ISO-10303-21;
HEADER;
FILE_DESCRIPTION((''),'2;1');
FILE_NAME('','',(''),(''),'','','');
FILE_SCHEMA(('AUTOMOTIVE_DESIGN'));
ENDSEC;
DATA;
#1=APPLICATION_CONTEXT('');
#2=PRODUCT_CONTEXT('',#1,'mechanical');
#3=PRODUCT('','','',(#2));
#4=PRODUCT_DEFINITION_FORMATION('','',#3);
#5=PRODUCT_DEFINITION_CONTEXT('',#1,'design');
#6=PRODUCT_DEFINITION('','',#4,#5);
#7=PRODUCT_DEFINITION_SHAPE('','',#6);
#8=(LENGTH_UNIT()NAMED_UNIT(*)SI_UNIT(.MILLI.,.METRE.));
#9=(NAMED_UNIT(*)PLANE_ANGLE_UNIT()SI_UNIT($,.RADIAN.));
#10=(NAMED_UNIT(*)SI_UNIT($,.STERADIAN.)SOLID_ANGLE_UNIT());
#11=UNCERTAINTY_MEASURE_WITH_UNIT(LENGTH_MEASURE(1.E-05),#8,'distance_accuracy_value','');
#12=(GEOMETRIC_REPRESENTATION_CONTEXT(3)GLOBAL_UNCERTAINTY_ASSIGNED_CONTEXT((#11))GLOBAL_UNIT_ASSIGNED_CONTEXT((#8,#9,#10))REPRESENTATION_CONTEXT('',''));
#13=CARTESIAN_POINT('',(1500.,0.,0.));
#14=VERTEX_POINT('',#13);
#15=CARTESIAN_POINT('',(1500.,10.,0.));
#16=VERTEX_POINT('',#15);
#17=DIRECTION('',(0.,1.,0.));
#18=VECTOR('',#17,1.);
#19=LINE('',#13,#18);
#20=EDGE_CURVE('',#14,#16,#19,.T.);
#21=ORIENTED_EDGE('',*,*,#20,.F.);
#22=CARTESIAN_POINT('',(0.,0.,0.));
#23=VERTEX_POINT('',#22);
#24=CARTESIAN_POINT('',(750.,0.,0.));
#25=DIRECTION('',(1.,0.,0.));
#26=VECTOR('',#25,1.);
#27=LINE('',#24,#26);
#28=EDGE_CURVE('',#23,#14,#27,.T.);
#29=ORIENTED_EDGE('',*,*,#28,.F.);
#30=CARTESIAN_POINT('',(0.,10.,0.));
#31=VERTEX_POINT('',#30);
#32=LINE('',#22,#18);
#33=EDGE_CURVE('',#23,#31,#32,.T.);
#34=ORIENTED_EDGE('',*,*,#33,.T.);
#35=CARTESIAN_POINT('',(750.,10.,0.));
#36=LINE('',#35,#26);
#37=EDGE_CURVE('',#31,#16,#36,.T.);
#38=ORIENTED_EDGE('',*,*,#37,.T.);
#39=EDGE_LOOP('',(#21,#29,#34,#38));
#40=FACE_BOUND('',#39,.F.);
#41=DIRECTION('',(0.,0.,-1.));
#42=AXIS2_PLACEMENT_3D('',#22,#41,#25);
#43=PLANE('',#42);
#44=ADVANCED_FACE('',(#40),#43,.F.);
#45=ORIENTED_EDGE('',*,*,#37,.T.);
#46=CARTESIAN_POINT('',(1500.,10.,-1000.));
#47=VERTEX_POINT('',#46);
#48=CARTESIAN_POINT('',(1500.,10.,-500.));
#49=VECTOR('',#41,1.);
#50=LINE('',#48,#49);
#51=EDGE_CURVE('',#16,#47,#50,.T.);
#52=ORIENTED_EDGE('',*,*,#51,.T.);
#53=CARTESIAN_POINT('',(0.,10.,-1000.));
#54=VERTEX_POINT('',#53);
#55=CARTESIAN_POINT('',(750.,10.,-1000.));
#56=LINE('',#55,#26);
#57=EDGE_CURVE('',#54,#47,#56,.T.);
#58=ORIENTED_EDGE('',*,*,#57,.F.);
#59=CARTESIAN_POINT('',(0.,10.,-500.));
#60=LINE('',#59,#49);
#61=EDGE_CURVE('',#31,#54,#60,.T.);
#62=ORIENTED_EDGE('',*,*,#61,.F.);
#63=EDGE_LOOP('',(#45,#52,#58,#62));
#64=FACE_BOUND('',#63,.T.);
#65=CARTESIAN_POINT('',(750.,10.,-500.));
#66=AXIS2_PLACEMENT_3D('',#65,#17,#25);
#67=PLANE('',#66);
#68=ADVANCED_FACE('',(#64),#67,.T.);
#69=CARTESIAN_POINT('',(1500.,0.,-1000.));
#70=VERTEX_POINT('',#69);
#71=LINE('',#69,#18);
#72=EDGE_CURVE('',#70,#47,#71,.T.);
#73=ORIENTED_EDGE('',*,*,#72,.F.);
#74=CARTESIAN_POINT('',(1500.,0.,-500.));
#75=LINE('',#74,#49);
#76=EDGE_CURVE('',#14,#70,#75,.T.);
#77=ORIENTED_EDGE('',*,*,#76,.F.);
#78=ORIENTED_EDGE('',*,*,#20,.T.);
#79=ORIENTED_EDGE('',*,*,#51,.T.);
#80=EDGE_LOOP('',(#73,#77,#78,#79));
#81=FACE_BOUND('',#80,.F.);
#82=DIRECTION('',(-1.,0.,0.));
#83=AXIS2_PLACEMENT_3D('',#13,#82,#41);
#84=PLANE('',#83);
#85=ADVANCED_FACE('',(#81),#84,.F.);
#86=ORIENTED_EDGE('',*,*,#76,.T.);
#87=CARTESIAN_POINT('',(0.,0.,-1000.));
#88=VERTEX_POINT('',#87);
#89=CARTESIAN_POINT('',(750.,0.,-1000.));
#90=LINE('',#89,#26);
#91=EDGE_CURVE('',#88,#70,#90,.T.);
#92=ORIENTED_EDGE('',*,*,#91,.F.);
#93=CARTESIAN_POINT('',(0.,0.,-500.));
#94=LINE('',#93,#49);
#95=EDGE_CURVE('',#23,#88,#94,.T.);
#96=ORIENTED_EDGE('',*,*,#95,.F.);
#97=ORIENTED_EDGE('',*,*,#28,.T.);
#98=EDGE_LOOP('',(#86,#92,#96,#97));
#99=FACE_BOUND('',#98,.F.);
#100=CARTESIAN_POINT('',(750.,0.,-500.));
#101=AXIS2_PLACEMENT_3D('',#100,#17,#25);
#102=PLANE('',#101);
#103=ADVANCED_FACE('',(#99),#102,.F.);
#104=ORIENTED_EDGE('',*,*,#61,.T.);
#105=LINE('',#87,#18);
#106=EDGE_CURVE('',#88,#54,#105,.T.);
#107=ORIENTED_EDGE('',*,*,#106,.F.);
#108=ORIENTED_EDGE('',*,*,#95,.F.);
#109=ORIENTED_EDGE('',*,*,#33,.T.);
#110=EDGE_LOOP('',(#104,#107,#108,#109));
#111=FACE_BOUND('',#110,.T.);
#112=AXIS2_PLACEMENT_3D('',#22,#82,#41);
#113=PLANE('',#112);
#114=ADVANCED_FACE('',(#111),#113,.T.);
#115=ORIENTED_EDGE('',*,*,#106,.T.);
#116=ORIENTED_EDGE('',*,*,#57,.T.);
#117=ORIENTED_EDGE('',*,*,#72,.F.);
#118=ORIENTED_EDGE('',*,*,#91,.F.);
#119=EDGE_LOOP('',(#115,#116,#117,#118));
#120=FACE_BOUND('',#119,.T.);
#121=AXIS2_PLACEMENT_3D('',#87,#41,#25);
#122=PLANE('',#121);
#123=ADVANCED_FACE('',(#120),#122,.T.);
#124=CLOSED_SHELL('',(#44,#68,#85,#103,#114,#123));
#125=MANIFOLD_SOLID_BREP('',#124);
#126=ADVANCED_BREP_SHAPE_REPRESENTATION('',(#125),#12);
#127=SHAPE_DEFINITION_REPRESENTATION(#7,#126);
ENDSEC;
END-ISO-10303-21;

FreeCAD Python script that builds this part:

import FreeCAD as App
import Part
import Sketcher
from FreeCAD import Vector
Q = App.Units.Quantity


def add_polygon(sketch, points):
    """Adds a closed chain of lines whose ends are joined by coincident constraints."""
    first, n = sketch.GeometryCount, len(points)
    for a, b in zip(points, points[1:] + points[:1]):
        sketch.addGeometry(Part.LineSegment(App.Vector(*a, 0), App.Vector(*b, 0)), False)
    for i in range(n):
        sketch.addConstraint(Sketcher.Constraint("Coincident", first + i, 2, first + (i + 1) % n, 1))

doc = App.newDocument("Part")
body = doc.addObject("PartDesign::Body", "Body")

# Sketch on XZ plane
sketch1 = body.newObject("Sketcher::SketchObject", "Sketch")
sketch1.AttachmentSupport = (doc.getObject("XZ_Plane"), [""])
sketch1.MapMode = "FlatFace"
add_polygon(sketch1, [(0, -1000), (0, 0), (1500, 0), (1500, -1000)])  # lines 0-3
sketch1.addConstraint([
    Sketcher.Constraint("Vertical", 0),
    Sketcher.Constraint("Horizontal", 1),
    Sketcher.Constraint("Vertical", 2),
    Sketcher.Constraint("Horizontal", 3),
    Sketcher.Constraint("Coincident", 0, 2, -1, 1),
    Sketcher.Constraint("DistanceX", 1, 1, 1, 2, Q("1500 mm")),
    Sketcher.Constraint("DistanceY", 0, 1, 0, 2, Q("1000 mm")),
])
pad1 = body.newObject("PartDesign::Pad", "Pad")
pad1.Profile = sketch1
pad1.Length = 10
pad1.Reversed = True

doc.recompute()
